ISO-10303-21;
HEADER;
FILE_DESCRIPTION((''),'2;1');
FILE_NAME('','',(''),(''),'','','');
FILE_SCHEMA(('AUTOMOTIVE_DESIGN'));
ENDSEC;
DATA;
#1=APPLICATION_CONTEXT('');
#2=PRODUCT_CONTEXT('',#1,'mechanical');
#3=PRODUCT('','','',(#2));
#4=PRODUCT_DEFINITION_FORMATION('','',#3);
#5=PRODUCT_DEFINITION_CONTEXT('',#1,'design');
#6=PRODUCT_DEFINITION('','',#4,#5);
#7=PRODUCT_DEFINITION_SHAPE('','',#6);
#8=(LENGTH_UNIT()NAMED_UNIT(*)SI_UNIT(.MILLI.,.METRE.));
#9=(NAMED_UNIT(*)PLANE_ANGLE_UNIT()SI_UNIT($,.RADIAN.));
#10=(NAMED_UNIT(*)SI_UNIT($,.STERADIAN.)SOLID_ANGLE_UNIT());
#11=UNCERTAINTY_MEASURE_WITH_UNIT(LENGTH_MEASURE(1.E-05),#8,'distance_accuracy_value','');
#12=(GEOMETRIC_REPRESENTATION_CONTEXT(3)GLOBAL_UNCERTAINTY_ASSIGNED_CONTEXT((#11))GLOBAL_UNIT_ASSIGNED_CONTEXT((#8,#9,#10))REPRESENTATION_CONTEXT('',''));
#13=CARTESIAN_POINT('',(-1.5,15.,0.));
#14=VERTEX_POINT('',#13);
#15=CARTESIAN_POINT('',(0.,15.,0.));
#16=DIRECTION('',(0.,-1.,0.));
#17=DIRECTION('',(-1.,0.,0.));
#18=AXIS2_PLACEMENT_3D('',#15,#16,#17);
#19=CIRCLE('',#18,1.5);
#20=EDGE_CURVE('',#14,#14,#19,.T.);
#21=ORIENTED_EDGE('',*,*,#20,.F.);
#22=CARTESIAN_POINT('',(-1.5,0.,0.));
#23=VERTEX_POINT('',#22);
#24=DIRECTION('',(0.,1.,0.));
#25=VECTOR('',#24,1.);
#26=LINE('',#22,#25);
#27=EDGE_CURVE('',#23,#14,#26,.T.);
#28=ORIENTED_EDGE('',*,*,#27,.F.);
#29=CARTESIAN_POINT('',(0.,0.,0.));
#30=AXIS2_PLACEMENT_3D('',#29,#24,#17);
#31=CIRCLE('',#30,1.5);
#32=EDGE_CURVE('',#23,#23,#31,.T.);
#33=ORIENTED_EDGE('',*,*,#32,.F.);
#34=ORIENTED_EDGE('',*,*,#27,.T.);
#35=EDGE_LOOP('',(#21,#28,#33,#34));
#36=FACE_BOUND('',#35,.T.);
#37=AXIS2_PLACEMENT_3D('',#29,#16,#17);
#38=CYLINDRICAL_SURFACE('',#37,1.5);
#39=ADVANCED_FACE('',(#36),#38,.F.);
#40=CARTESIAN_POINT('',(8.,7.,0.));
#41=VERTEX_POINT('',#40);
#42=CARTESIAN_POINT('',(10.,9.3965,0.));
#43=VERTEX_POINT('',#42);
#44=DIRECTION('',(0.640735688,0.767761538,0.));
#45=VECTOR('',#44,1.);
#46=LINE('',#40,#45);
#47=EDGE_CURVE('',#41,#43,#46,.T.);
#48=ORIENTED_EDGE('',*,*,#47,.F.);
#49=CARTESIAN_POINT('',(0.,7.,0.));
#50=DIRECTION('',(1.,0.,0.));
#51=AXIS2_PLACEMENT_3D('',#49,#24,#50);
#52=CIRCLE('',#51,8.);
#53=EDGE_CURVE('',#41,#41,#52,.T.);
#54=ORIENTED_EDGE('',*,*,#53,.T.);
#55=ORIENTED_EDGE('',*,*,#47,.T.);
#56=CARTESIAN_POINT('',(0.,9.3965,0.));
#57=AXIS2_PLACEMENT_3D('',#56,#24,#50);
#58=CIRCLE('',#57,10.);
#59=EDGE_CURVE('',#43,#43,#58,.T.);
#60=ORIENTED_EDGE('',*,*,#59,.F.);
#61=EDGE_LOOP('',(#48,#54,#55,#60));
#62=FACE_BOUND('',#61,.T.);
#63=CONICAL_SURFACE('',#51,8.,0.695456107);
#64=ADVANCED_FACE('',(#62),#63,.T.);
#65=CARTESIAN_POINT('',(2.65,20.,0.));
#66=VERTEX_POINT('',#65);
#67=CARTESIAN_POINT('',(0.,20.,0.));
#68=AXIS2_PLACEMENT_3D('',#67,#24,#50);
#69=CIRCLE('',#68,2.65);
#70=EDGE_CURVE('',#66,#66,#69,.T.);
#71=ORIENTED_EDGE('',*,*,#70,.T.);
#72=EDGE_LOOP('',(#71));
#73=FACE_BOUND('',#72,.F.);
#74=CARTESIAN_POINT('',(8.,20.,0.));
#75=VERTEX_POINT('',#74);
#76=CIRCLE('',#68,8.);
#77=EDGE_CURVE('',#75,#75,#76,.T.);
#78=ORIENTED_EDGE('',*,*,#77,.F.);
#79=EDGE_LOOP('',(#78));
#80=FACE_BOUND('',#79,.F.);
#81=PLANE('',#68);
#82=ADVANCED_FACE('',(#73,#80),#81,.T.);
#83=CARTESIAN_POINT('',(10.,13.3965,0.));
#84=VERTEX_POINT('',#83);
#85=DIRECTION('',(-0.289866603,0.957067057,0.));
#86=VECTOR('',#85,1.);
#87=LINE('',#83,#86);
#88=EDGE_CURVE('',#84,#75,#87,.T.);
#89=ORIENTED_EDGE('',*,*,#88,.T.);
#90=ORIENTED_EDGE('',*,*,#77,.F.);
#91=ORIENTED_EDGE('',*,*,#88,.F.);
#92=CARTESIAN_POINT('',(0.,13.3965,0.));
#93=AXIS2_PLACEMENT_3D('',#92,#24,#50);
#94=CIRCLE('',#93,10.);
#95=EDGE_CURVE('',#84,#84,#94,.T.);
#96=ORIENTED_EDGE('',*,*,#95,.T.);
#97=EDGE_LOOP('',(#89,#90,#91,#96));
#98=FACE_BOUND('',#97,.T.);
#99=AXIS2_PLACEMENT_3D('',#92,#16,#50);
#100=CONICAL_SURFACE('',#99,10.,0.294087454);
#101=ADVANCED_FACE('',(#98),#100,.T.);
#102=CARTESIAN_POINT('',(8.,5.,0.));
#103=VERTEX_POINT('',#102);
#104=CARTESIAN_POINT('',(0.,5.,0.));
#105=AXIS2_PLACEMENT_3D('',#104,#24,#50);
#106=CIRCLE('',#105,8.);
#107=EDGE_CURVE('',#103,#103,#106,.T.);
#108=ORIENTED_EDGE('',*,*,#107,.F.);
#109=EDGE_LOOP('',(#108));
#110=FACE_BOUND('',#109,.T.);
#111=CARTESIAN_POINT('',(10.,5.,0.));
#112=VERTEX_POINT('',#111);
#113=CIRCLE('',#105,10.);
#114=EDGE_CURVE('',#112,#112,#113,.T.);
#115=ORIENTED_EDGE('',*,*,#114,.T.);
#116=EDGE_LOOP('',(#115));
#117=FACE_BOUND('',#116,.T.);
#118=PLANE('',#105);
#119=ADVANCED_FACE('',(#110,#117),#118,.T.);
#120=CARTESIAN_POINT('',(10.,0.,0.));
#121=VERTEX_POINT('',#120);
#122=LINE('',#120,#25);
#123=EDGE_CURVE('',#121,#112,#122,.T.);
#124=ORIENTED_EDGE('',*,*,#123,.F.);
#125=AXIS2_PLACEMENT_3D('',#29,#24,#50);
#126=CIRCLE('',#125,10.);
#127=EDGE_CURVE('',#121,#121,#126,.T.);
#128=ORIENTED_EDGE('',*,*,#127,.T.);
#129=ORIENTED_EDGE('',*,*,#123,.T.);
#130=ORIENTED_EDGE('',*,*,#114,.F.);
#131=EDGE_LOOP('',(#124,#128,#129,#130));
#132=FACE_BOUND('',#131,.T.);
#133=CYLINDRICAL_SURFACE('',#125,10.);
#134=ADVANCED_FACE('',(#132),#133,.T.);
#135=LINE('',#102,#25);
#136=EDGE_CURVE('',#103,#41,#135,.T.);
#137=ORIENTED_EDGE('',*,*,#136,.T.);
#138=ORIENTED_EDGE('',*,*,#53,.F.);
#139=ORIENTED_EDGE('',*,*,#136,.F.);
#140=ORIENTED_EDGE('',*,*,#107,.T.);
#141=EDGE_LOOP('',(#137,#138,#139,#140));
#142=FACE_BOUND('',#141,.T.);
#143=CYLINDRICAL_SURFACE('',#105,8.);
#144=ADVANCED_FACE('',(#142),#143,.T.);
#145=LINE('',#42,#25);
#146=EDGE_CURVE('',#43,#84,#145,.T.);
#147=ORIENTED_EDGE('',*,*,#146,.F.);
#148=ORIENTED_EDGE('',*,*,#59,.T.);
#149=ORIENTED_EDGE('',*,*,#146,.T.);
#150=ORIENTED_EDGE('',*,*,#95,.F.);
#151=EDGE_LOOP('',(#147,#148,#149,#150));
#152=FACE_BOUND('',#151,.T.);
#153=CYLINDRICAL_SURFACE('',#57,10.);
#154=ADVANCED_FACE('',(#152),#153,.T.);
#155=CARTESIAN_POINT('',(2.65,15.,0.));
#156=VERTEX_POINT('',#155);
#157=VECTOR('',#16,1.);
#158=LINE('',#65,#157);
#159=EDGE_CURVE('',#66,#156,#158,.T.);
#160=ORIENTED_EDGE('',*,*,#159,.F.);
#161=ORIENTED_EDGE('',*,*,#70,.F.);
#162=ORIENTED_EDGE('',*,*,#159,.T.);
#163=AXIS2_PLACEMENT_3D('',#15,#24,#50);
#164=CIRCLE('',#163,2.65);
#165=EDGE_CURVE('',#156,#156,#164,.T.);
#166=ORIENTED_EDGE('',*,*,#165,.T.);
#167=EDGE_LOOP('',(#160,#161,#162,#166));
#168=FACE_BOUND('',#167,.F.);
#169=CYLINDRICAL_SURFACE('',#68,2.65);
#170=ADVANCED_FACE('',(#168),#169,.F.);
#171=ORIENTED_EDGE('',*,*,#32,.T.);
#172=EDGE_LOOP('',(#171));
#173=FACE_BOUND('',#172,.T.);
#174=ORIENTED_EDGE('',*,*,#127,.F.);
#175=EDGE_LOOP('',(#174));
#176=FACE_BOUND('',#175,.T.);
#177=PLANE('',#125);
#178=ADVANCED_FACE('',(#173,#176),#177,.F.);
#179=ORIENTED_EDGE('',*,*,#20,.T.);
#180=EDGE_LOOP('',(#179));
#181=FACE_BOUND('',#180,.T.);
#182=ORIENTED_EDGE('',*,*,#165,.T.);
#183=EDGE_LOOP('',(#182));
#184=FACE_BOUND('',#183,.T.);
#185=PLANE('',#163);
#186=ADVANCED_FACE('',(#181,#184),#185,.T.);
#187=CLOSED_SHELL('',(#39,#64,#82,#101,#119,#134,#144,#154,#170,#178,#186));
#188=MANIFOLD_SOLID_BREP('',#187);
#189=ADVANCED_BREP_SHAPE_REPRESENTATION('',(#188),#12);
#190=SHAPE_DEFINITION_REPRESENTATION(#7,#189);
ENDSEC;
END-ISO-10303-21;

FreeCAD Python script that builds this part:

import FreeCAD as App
import Part
import Sketcher
from FreeCAD import Vector
Q = App.Units.Quantity

doc = App.newDocument("Part")
params = doc.addObject("Spreadsheet::Sheet", "Params")
for row, (alias, value) in enumerate([
    ("sketch1_width", "10 mm"),
    ("sketch1_width2", "2 mm"),
    ("sketch1_height", "20 mm"),
    ("sketch1_height2", "5 mm"),
    ("sketch1_height3", "4 mm"),
    ("revolution_angle", "360 deg"),
    ("sketch2_diameter", "3 mm"),
    ("sketch3_diameter", "5.3 mm"),
    ("pocket2_length", "5 mm"),
], start=1):
    params.set(f"A{row}", alias)
    params.set(f"B{row}", "=" + value)
    params.setAlias(f"B{row}", alias)

body = doc.addObject("PartDesign::Body", "Body")

sketch1 = doc.addObject("Sketcher::SketchObject", "Sketch")
body.addObject(sketch1)
sketch1.AttachmentSupport = (doc.XY_Plane, [""])
sketch1.MapMode = "FlatFace"
sketch1.addGeometry(Part.LineSegment(Vector(0, 20, 0), Vector(0, 0, 0)), False)
sketch1.addGeometry(Part.LineSegment(Vector(0, 0, 0), Vector(10, 0, 0)), False)
sketch1.addGeometry(Part.LineSegment(Vector(10, 0, 0), Vector(10, 5, 0)), False)
sketch1.addGeometry(Part.LineSegment(Vector(10, 5, 0), Vector(8, 5, 0)), False)
sketch1.addGeometry(Part.LineSegment(Vector(8, 5, 0), Vector(8, 7, 0)), False)
sketch1.addGeometry(Part.LineSegment(Vector(8, 7, 0), Vector(10, 9.4, 0)), False)
sketch1.addGeometry(Part.LineSegment(Vector(10, 9.4, 0), Vector(10, 13.4, 0)), False)
sketch1.addGeometry(Part.LineSegment(Vector(10, 13.4, 0), Vector(8, 20, 0)), False)
sketch1.addGeometry(Part.LineSegment(Vector(8, 20, 0), Vector(0, 20, 0)), False)
sketch1.addConstraint(Sketcher.Constraint("Coincident", 0, 2, 1, 1))
sketch1.addConstraint(Sketcher.Constraint("Coincident", 1, 2, 2, 1))
sketch1.addConstraint(Sketcher.Constraint("Coincident", 2, 2, 3, 1))
sketch1.addConstraint(Sketcher.Constraint("Coincident", 3, 2, 4, 1))
sketch1.addConstraint(Sketcher.Constraint("Coincident", 4, 2, 5, 1))
sketch1.addConstraint(Sketcher.Constraint("Coincident", 5, 2, 6, 1))
sketch1.addConstraint(Sketcher.Constraint("Coincident", 6, 2, 7, 1))
sketch1.addConstraint(Sketcher.Constraint("Coincident", 7, 2, 8, 1))
sketch1.addConstraint(Sketcher.Constraint("Coincident", 8, 2, 0, 1))
sketch1.addConstraint(Sketcher.Constraint("Vertical", 0))
sketch1.addConstraint(Sketcher.Constraint("Horizontal", 1))
sketch1.addConstraint(Sketcher.Constraint("Vertical", 2))
sketch1.addConstraint(Sketcher.Constraint("Horizontal", 3))
sketch1.addConstraint(Sketcher.Constraint("Vertical", 4))
sketch1.addConstraint(Sketcher.Constraint("Vertical", 6))
sketch1.addConstraint(Sketcher.Constraint("Horizontal", 8))
sketch1.addConstraint(Sketcher.Constraint("Coincident", 0, 2, -1, 1))
sketch1.addConstraint(Sketcher.Constraint("Vertical", 2, 2, 5, 2))
sketch1.addConstraint(Sketcher.Constraint("Vertical", 4, 2, 7, 2))
sketch1.addConstraint(Sketcher.Constraint("Equal", 3, 4))
sketch1.addConstraint(Sketcher.Constraint("DistanceX", 1, 1, 1, 2, Q("10 mm")))
sketch1.addConstraint(Sketcher.Constraint("DistanceX", 3, 2, 3, 1, Q("2 mm")))
sketch1.addConstraint(Sketcher.Constraint("DistanceY", 0, 2, 0, 1, Q("20 mm")))
sketch1.addConstraint(Sketcher.Constraint("DistanceY", 2, 1, 2, 2, Q("5 mm")))
sketch1.addConstraint(Sketcher.Constraint("DistanceY", 6, 1, 6, 2, Q("4 mm")))
sketch1.addConstraint(Sketcher.Constraint("Angle", 7, Q("106.85 deg")))
sketch1.setExpression("Constraints[20]", "Params.sketch1_width")
sketch1.setExpression("Constraints[21]", "Params.sketch1_width2")
sketch1.setExpression("Constraints[22]", "Params.sketch1_height")
sketch1.setExpression("Constraints[23]", "Params.sketch1_height2")
sketch1.setExpression("Constraints[24]", "Params.sketch1_height3")
revolution = doc.addObject("PartDesign::Revolution", "Revolution")
body.addObject(revolution)
revolution.Profile = sketch1
revolution.ReferenceAxis = (sketch1, ["V_Axis"])
revolution.setExpression("Angle", "Params.revolution_angle")

sketch2 = doc.addObject("Sketcher::SketchObject", "Sketch001")
body.addObject(sketch2)
sketch2.AttachmentSupport = (doc.XZ_Plane, [""])
sketch2.MapMode = "FlatFace"
sketch2.addGeometry(Part.Circle(Vector(0, 0, 0), Vector(0, 0, 1), 1.5), False)
sketch2.addConstraint(Sketcher.Constraint("Coincident", 0, 3, -1, 1))
sketch2.addConstraint(Sketcher.Constraint("Diameter", 0, Q("3 mm")))
sketch2.setExpression("Constraints[1]", "Params.sketch2_diameter")
pocket1 = doc.addObject("PartDesign::Pocket", "Pocket")
body.addObject(pocket1)
pocket1.Profile = sketch2
pocket1.Type = "ThroughAll"

sketch3 = doc.addObject("Sketcher::SketchObject", "Sketch002")
body.addObject(sketch3)
sketch3.AttachmentSupport = (doc.XZ_Plane, [""])
sketch3.MapMode = "FlatFace"
sketch3.AttachmentOffset = App.Placement(Vector(0, 0, -20), App.Rotation())
sketch3.addGeometry(Part.Circle(Vector(0, 0, 0), Vector(0, 0, 1), 2.6), False)
sketch3.addConstraint(Sketcher.Constraint("Coincident", 0, 3, -1, 1))
sketch3.addConstraint(Sketcher.Constraint("Diameter", 0, Q("5.3 mm")))
sketch3.setExpression("Constraints[1]", "Params.sketch3_diameter")
pocket2 = doc.addObject("PartDesign::Pocket", "Pocket001")
body.addObject(pocket2)
pocket2.Profile = sketch3
pocket2.setExpression("Length", "Params.pocket2_length")
pocket2.Reversed = True

doc.recompute()
